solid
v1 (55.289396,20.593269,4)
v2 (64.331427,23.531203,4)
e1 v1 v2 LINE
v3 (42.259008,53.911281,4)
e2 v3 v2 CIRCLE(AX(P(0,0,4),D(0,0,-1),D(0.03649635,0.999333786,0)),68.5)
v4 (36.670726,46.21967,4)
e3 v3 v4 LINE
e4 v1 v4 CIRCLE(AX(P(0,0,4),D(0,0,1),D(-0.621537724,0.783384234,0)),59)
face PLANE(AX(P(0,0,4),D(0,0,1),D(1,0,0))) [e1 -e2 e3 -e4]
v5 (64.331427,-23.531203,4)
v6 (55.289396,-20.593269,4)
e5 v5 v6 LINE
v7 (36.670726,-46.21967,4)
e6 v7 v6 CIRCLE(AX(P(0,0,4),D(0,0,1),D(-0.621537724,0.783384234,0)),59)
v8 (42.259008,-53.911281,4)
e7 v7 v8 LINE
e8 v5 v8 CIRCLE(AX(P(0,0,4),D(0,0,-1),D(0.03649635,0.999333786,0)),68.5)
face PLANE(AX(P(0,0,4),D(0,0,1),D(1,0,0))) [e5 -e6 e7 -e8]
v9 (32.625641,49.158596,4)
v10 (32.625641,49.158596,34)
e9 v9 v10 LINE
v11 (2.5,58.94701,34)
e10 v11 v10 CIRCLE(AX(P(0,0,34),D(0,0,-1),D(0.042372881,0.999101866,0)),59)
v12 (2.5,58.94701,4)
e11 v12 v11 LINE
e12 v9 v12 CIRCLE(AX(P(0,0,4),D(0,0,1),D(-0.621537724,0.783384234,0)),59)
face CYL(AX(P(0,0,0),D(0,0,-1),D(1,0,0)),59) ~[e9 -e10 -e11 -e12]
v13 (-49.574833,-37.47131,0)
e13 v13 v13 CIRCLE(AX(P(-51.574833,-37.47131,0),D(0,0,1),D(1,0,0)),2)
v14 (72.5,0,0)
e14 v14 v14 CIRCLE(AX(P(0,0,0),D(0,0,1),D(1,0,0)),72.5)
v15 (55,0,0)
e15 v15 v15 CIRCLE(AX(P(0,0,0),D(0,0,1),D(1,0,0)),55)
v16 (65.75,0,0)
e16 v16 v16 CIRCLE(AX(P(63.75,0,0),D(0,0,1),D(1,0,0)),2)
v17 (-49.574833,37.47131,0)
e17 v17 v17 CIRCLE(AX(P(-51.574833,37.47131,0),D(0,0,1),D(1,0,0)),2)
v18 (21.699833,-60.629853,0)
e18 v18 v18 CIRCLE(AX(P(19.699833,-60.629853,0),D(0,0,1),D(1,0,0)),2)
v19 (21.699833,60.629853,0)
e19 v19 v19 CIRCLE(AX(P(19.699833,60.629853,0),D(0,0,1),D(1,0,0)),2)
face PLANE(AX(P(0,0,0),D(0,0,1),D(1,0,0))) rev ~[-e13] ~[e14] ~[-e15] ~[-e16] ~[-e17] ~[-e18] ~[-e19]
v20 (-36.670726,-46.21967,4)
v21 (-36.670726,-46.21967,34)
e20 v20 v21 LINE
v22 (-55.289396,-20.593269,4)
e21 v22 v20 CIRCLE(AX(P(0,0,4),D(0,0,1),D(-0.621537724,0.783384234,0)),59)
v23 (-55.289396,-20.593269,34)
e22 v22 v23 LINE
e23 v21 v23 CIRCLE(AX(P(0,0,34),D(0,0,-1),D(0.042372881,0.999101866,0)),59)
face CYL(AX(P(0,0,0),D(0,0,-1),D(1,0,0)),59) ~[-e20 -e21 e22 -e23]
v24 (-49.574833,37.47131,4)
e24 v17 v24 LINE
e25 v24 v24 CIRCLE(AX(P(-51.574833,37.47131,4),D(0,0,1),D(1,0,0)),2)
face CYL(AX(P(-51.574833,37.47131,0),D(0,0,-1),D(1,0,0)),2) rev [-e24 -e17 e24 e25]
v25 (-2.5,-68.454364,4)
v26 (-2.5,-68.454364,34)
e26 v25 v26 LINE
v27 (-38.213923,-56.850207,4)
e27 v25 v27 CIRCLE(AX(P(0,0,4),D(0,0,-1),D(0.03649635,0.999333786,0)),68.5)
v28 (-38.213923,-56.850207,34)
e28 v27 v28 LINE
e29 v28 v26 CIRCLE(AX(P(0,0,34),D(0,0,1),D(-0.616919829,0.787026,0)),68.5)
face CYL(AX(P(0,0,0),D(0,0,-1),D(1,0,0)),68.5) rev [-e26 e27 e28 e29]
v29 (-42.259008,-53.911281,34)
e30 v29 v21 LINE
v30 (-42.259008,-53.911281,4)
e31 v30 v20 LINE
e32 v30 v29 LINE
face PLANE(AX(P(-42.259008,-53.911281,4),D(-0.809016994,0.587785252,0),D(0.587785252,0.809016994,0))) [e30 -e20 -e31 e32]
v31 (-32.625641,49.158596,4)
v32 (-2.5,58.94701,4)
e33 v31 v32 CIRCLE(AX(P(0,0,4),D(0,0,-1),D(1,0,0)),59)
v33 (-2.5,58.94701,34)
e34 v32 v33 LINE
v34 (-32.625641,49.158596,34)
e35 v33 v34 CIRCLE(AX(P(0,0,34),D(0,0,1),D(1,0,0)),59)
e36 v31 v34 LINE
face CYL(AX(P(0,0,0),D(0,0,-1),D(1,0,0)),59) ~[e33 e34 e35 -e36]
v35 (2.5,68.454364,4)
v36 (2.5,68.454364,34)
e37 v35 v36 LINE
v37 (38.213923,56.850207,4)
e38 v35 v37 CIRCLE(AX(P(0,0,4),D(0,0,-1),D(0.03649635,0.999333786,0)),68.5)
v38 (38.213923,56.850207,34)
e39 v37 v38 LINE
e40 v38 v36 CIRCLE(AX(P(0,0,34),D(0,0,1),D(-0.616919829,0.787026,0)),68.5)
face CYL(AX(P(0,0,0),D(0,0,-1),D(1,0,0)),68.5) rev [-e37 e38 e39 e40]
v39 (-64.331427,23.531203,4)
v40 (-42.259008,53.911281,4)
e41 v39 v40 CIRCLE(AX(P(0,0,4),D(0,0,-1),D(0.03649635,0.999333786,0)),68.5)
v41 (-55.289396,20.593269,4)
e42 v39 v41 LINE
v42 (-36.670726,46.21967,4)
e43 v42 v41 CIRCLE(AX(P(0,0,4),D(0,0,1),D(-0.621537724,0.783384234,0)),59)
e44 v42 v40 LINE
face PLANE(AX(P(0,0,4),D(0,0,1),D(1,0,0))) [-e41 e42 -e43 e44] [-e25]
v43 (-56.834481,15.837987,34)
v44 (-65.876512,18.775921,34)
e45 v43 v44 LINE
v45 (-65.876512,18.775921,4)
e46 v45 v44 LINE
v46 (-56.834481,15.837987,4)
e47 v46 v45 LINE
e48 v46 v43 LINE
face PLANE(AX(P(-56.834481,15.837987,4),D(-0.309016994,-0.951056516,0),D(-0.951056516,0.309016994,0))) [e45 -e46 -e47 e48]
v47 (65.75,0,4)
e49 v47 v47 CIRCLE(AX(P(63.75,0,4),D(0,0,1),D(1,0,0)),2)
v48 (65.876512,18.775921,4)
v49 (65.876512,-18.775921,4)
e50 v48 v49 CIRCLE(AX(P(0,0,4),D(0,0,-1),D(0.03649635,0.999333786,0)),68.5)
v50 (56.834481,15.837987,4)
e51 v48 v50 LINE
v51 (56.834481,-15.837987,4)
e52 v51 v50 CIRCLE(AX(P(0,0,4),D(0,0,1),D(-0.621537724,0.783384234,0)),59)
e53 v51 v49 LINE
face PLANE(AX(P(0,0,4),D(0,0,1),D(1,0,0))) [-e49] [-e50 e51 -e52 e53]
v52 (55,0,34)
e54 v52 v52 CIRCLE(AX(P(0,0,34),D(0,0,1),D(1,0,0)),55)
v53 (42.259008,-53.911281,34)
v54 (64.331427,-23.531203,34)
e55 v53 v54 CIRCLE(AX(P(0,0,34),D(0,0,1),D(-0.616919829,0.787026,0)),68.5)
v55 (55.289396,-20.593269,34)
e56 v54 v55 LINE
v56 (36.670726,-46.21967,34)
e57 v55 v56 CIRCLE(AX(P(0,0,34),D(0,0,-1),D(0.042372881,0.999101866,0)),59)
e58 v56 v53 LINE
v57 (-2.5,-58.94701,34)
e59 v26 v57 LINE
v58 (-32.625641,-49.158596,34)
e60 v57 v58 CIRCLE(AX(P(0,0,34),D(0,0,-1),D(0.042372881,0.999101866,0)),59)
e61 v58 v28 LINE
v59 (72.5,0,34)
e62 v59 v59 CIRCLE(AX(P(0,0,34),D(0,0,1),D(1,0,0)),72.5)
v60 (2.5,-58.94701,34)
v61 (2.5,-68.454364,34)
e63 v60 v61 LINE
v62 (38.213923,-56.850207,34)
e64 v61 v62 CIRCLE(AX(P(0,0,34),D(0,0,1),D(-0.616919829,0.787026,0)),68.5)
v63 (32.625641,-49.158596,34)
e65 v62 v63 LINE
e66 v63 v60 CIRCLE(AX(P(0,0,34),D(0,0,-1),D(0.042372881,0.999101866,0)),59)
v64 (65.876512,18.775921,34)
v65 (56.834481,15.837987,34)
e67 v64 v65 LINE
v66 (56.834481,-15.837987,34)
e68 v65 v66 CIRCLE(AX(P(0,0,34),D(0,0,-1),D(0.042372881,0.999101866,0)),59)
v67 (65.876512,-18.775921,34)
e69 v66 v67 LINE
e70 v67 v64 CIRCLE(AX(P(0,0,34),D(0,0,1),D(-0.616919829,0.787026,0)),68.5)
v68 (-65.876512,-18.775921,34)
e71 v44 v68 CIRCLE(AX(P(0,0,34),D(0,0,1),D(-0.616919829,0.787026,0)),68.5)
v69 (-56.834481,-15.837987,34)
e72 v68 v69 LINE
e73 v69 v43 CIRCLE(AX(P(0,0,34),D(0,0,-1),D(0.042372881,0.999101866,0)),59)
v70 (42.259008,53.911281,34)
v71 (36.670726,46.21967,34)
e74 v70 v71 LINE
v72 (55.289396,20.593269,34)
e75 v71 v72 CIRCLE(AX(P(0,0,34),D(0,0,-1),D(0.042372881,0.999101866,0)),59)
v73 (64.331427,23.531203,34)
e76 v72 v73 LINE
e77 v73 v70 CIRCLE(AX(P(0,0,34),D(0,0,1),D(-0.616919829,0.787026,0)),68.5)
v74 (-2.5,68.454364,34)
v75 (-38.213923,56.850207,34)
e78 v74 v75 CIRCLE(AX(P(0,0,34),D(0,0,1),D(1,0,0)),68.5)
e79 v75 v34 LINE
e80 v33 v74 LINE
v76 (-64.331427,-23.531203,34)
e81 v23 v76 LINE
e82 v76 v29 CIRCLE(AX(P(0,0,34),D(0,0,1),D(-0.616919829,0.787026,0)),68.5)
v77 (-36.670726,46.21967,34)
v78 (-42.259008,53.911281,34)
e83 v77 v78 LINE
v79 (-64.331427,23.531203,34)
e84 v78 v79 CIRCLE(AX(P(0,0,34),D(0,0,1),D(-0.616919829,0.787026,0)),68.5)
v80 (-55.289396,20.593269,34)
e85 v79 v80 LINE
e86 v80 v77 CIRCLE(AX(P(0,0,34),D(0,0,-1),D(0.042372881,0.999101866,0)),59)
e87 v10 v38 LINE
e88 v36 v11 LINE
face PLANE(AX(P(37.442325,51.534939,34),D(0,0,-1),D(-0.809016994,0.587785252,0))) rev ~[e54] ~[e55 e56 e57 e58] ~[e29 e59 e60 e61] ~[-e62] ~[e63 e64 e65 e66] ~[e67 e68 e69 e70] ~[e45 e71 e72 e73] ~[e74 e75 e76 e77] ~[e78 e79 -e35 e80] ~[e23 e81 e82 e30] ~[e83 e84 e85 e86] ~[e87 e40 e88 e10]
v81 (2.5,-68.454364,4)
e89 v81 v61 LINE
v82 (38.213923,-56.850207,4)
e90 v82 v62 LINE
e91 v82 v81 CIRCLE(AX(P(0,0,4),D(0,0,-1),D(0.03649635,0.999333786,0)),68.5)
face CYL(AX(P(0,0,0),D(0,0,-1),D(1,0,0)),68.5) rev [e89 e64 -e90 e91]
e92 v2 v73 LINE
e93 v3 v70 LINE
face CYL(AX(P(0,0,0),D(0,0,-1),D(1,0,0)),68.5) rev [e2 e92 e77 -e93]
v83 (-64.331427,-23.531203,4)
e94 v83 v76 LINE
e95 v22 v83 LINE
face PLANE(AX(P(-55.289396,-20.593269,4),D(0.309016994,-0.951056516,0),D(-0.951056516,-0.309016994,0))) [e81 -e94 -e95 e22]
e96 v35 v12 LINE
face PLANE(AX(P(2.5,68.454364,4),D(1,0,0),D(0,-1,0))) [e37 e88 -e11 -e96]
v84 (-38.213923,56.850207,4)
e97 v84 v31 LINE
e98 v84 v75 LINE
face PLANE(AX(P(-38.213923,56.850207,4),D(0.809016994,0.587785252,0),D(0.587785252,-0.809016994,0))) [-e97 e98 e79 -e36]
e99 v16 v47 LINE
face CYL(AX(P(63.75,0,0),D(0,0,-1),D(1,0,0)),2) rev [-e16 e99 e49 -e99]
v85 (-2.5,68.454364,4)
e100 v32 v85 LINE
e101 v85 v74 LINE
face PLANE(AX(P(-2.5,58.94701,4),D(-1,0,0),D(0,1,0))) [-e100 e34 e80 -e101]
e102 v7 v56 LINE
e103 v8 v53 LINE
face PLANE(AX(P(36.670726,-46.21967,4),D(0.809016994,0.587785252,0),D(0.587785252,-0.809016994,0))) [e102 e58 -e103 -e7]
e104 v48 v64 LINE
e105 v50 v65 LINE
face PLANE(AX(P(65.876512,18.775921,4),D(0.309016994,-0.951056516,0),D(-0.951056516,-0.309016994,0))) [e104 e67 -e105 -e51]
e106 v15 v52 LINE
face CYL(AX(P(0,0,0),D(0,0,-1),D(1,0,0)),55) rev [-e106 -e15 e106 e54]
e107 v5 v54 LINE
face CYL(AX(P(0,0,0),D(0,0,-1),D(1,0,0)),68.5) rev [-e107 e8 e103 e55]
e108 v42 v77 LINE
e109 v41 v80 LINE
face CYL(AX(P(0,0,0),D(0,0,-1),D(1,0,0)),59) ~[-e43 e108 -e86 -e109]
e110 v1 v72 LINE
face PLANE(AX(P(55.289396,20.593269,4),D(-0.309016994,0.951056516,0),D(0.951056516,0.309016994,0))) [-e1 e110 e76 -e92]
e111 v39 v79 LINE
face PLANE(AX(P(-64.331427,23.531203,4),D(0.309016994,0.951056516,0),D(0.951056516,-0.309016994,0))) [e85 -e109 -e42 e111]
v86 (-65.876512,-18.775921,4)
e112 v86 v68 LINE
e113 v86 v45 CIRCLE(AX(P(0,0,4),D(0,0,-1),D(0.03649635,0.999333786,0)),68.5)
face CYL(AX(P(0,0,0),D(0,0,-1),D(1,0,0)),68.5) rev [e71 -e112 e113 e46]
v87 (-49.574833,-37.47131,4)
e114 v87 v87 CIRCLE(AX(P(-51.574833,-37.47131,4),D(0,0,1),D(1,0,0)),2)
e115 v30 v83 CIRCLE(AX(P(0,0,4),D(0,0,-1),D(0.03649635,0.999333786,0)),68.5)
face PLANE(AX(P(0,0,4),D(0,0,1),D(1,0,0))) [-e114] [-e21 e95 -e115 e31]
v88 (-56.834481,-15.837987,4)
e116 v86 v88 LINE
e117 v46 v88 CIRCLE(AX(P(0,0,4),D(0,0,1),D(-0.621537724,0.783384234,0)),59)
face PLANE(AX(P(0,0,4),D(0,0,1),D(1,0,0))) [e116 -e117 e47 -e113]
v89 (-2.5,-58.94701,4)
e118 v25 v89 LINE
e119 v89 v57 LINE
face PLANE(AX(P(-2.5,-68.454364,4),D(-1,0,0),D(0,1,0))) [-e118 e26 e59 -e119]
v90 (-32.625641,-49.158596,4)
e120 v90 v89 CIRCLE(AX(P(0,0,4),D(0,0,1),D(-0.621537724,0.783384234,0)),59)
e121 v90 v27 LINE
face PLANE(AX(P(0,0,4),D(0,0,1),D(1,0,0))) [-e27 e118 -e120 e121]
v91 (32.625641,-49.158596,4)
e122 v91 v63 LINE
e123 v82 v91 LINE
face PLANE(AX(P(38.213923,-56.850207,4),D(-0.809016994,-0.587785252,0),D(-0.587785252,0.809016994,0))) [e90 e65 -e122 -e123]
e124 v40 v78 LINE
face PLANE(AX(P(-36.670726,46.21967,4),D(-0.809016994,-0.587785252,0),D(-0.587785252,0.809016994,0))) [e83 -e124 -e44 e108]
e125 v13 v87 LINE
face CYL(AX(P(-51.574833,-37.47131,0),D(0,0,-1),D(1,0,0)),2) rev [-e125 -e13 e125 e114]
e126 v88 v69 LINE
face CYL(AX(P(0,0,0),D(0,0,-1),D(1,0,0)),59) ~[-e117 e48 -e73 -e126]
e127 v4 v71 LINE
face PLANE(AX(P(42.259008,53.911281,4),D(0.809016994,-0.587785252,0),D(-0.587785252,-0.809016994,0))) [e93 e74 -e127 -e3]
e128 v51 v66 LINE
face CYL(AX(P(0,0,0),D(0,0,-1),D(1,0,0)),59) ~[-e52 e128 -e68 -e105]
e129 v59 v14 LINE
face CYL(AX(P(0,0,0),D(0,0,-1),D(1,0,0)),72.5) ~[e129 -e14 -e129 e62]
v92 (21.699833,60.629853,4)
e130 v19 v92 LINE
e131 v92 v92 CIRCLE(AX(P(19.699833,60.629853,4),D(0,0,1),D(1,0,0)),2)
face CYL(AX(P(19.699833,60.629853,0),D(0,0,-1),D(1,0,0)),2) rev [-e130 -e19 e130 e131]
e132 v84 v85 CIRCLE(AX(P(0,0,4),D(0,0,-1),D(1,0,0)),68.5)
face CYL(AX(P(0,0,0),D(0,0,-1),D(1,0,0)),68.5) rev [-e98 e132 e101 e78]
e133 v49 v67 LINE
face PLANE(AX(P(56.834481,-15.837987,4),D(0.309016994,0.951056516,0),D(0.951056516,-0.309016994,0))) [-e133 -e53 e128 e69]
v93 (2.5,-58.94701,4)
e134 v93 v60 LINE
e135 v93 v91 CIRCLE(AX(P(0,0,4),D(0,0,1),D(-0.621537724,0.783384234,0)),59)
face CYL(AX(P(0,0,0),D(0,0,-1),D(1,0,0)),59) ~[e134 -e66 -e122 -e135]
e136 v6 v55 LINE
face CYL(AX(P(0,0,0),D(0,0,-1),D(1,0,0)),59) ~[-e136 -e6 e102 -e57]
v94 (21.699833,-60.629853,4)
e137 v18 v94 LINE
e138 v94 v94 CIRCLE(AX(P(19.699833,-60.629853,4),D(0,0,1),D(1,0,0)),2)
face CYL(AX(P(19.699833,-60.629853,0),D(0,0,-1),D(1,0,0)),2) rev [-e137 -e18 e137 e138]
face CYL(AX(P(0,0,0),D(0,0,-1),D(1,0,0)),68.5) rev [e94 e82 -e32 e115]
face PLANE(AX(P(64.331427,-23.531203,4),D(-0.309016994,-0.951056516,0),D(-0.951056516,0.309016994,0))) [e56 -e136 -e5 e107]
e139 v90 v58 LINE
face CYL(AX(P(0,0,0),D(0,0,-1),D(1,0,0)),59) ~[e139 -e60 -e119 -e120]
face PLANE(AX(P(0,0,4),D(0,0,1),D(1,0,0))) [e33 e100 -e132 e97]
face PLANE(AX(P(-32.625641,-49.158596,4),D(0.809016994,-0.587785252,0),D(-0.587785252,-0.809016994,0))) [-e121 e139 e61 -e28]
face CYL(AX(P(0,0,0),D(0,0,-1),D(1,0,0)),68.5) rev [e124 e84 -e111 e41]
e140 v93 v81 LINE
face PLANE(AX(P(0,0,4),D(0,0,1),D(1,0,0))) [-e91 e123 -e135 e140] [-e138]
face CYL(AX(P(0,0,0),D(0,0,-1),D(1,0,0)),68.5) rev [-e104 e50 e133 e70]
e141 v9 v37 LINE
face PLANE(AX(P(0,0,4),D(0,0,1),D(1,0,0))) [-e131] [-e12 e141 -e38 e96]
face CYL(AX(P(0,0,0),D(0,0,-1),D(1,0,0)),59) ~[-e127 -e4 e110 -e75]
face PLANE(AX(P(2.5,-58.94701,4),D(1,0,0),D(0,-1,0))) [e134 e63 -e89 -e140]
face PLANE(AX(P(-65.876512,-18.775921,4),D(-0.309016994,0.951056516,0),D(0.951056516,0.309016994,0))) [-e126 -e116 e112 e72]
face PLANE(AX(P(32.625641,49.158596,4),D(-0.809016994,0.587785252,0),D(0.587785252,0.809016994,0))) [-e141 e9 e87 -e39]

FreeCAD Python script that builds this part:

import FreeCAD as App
import Part
import Sketcher
from FreeCAD import Vector


def add_polygon(sketch, points):
    """Adds a closed chain of lines whose ends are joined by coincident constraints."""
    first, n = sketch.GeometryCount, len(points)
    for a, b in zip(points, points[1:] + points[:1]):
        sketch.addGeometry(Part.LineSegment(App.Vector(*a, 0), App.Vector(*b, 0)), False)
    for i in range(n):
        sketch.addConstraint(Sketcher.Constraint("Coincident", first + i, 2, first + (i + 1) % n, 1))

doc = App.newDocument("Part")
body = doc.addObject("PartDesign::Body", "Body")

# Sketch on XY plane
sketch1 = doc.addObject("Sketcher::SketchObject", "Sketch")
body.addObject(sketch1)
sketch1.AttachmentSupport = (doc.XY_Plane, [""])
sketch1.MapMode = "FlatFace"
sketch1.addGeometry([
    Part.Circle(Vector(0, 0, 0), Vector(0, 0, 1), 72.5),  # 0
    Part.Circle(Vector(-51.6, -37.5, 0), Vector(0, 0, 1), 2),  # 1
    Part.Circle(Vector(19.7, -60.6, 0), Vector(0, 0, 1), 2),  # 2
    Part.Circle(Vector(0, 0, 0), Vector(0, 0, 1), 55),  # 3
    Part.Circle(Vector(-51.6, 37.5, 0), Vector(0, 0, 1), 2),  # 4
    Part.Circle(Vector(63.8, 0, 0), Vector(0, 0, 1), 2),  # 5
    Part.Circle(Vector(19.7, 60.6, 0), Vector(0, 0, 1), 2),  # 6
], False)
sketch1.addConstraint([
    Sketcher.Constraint("Coincident", 0, 3, -1, 1),
    Sketcher.Constraint("Coincident", 3, 3, -1, 1),
    Sketcher.Constraint("Equal", 1, 2),
    Sketcher.Constraint("Equal", 2, 4),
    Sketcher.Constraint("Equal", 4, 5),
    Sketcher.Constraint("Equal", 5, 6),
    Sketcher.Constraint("Symmetric", 1, 3, 4, 3, -1),
    Sketcher.Constraint("Symmetric", 2, 3, 6, 3, -1),
    Sketcher.Constraint("PointOnObject", 5, 3, -1),
    Sketcher.Constraint("Diameter", 0, 145.0),
    Sketcher.Constraint("Diameter", 1, 4.0),
    Sketcher.Constraint("Diameter", 3, 110.0),
    Sketcher.Constraint("DistanceX", -1, 1, 5, 3, 63.75),
    Sketcher.Constraint("DistanceY", 1, 3, -1, 1, 37.47131),
    Sketcher.Constraint("DistanceX", 1, 3, -1, 1, 51.574833),
    Sketcher.Constraint("DistanceX", -1, 1, 2, 3, 19.699833),
    Sketcher.Constraint("DistanceY", 2, 3, -1, 1, 60.629853),
])
pad1 = doc.addObject("PartDesign::Pad", "Pad")
body.addObject(pad1)
pad1.Profile = sketch1
pad1.Length = 4

# Sketch on XY plane
sketch2 = doc.addObject("Sketcher::SketchObject", "Sketch001")
body.addObject(sketch2)
sketch2.AttachmentSupport = (doc.XY_Plane, [""])
sketch2.MapMode = "FlatFace"
sketch2.addGeometry([
    Part.Circle(Vector(0, 0, 0), Vector(0, 0, 1), 72),
    Part.Circle(Vector(0, 0, 0), Vector(0, 0, 1), 68),
    Part.Circle(Vector(0, 0, 0), Vector(0, 0, 1), 59),
    Part.Circle(Vector(0, 0, 0), Vector(0, 0, 1), 55),
], False)
sketch2.addConstraint([
    Sketcher.Constraint("Coincident", 0, 3, -1, 1),
    Sketcher.Constraint("Coincident", 1, 3, -1, 1),
    Sketcher.Constraint("Coincident", 2, 3, -1, 1),
    Sketcher.Constraint("Coincident", 3, 3, -1, 1),
    Sketcher.Constraint("Diameter", 0, 145.0),
    Sketcher.Constraint("Diameter", 1, 137.0),
    Sketcher.Constraint("Diameter", 2, 118.0),
    Sketcher.Constraint("Diameter", 3, 110.0),
])
pad2 = doc.addObject("PartDesign::Pad", "Pad001")
body.addObject(pad2)
pad2.Profile = sketch2
pad2.Length = 34

# Sketch on XY plane
sketch3 = doc.addObject("Sketcher::SketchObject", "Sketch002")
body.addObject(sketch3)
sketch3.AttachmentSupport = (doc.XY_Plane, [""])
sketch3.MapMode = "FlatFace"
sketch3.AttachmentOffset = App.Placement(Vector(0, 0, 4), App.Rotation())
add_polygon(sketch3, [(-2.5, 68.5), (-2.5, 58.9), (0, 55.1), (2.5, 58.9), (2.5, 68.5), (0, 72.3)])  # lines 0-5
sketch3.addConstraint([
    Sketcher.Constraint("Vertical", 0),
    Sketcher.Constraint("Vertical", 3),
    Sketcher.Constraint("Symmetric", 0, 2, 2, 2, -2),
    Sketcher.Constraint("PointOnObject", 1, 2, -2),
    Sketcher.Constraint("PointOnObject", 4, 2, -2),
    Sketcher.Constraint("Parallel", 1, 4),
    Sketcher.Constraint("Parallel", 2, 5),
    Sketcher.Constraint("DistanceX", 0, 2, 2, 2, 5.0),
    Sketcher.Constraint("DistanceY", 0, 2, 0, 1, 9.507354),
    Sketcher.Constraint("DistanceY", -1, 1, 0, 2, 58.94701),
    Sketcher.Constraint("DistanceY", -1, 1, 1, 2, 55.13562),
])
pad3 = doc.addObject("PartDesign::Pad", "Pad002")
body.addObject(pad3)
pad3.Profile = sketch3
pad3.Length = 30
doc.recompute()

polarpattern = doc.addObject("PartDesign::PolarPattern", "PolarPattern")
body.addObject(polarpattern)
polarpattern.Originals = [pad3]
polarpattern.Axis = (doc.Z_Axis, [""])
polarpattern.Angle = 360
polarpattern.Occurrences = 10
body.Tip = polarpattern

doc.recompute()
